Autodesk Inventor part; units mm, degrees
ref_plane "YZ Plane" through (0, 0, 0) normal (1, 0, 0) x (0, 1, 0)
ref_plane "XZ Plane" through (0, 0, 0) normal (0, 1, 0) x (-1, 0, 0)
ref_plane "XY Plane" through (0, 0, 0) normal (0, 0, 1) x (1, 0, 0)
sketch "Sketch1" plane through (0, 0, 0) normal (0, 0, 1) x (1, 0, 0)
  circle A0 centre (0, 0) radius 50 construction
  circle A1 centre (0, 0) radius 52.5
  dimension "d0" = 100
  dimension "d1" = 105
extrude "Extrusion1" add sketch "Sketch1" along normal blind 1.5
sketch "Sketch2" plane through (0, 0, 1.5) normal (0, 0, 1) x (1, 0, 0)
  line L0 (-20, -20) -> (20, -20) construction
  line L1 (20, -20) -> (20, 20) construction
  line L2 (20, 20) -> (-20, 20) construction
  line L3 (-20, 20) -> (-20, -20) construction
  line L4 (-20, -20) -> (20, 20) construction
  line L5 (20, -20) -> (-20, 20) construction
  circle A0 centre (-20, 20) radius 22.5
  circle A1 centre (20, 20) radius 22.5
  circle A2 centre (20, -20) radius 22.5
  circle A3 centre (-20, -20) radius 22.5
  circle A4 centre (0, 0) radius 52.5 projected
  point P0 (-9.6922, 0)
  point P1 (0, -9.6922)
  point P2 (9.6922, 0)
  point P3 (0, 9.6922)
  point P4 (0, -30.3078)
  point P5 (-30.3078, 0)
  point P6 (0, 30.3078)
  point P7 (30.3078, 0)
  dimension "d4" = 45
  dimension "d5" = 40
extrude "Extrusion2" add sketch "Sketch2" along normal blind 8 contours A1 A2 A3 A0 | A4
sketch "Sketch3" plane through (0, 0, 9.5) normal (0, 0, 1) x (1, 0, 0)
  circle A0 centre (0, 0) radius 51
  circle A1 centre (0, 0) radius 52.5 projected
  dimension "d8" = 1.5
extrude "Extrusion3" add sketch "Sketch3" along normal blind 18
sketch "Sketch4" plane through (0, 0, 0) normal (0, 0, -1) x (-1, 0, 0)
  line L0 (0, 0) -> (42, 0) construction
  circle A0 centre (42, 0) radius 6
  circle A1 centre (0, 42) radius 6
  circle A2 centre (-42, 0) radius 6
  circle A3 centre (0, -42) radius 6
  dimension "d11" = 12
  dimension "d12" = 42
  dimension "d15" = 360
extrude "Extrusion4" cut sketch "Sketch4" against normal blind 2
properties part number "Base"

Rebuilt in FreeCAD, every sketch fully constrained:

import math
import FreeCAD as App
import Part
import Sketcher
from FreeCAD import Vector
Q = App.Units.Quantity

doc = App.newDocument("Part")
params = doc.addObject("Spreadsheet::Sheet", "Params")
for row, (alias, value) in enumerate([
    ("sketch1_diameter", "105 mm"),
    ("pad1_length", "1.5 mm"),
    ("sketch2_radius", "22.5 mm"),
    ("sketch2_diameter", "105 mm"),
    ("pad2_length", "8 mm"),
    ("sketch3_diameter", "105 mm"),
    ("sketch3_diameter2", "102 mm"),
    ("pad3_length", "18 mm"),
    ("sketch4_diameter", "12 mm"),
    ("pocket1_length", "2 mm"),
], start=1):
    params.set(f"A{row}", alias)
    params.set(f"B{row}", "=" + value)
    params.setAlias(f"B{row}", alias)

body = doc.addObject("PartDesign::Body", "Body")

# Sketch on XY plane
sketch1 = doc.addObject("Sketcher::SketchObject", "Sketch")
body.addObject(sketch1)
sketch1.AttachmentSupport = (doc.XY_Plane, [""])
sketch1.MapMode = "FlatFace"
sketch1.addGeometry(Part.Circle(Vector(0, 0, 0), Vector(0, 0, 1), 52), False)
sketch1.addConstraint(Sketcher.Constraint("Coincident", 0, 3, -1, 1))
sketch1.addConstraint(Sketcher.Constraint("Diameter", 0, Q("105 mm")))
sketch1.setExpression("Constraints[1]", "Params.sketch1_diameter")
pad1 = doc.addObject("PartDesign::Pad", "Pad")
body.addObject(pad1)
pad1.Profile = sketch1
pad1.setExpression("Length", "Params.pad1_length")

# Sketch on XY plane
sketch2 = doc.addObject("Sketcher::SketchObject", "Sketch001")
body.addObject(sketch2)
sketch2.AttachmentSupport = (doc.XY_Plane, [""])
sketch2.MapMode = "FlatFace"
sketch2.AttachmentOffset = App.Placement(Vector(0, 0, 1.5), App.Rotation())
sketch2.addGeometry(Part.ArcOfCircle(Part.Circle(Vector(20, 20, 0), Vector(0, 0, 1), 22), math.radians(-153), math.radians(-117)), False)
sketch2.addGeometry(Part.ArcOfCircle(Part.Circle(Vector(-20, 20, 0), Vector(0, 0, 1), 22), math.radians(-63), math.radians(-27)), False)
sketch2.addGeometry(Part.ArcOfCircle(Part.Circle(Vector(-20, -20, 0), Vector(0, 0, 1), 22), math.radians(27), math.radians(63)), False)
sketch2.addGeometry(Part.ArcOfCircle(Part.Circle(Vector(20, -20, 0), Vector(0, 0, 1), 22), math.radians(117), math.radians(153)), False)
sketch2.addGeometry(Part.Circle(Vector(0, 0, 0), Vector(0, 0, 1), 52), False)
sketch2.addGeometry(Part.ArcOfCircle(Part.Circle(Vector(-20, 20, 0), Vector(0, 0, 1), 22), math.radians(27), math.radians(243)), False)
sketch2.addGeometry(Part.ArcOfCircle(Part.Circle(Vector(20, 20, 0), Vector(0, 0, 1), 22), math.radians(-63), math.radians(153)), False)
sketch2.addGeometry(Part.ArcOfCircle(Part.Circle(Vector(20, -20, 0), Vector(0, 0, 1), 22), math.radians(-153), math.radians(63)), False)
sketch2.addGeometry(Part.ArcOfCircle(Part.Circle(Vector(-20, -20, 0), Vector(0, 0, 1), 22), math.radians(117), math.radians(333)), False)
sketch2.addConstraint(Sketcher.Constraint("Coincident", 0, 1, 1, 2))
sketch2.addConstraint(Sketcher.Constraint("Coincident", 1, 1, 2, 2))
sketch2.addConstraint(Sketcher.Constraint("Coincident", 2, 1, 3, 2))
sketch2.addConstraint(Sketcher.Constraint("Coincident", 3, 1, 0, 2))
sketch2.addConstraint(Sketcher.Constraint("Coincident", 5, 1, 6, 2))
sketch2.addConstraint(Sketcher.Constraint("Coincident", 6, 1, 7, 2))
sketch2.addConstraint(Sketcher.Constraint("Coincident", 7, 1, 8, 2))
sketch2.addConstraint(Sketcher.Constraint("Coincident", 8, 1, 5, 2))
sketch2.addConstraint(Sketcher.Constraint("Coincident", 4, 3, -1, 1))
sketch2.addConstraint(Sketcher.Constraint("Coincident", 5, 3, 1, 3))
sketch2.addConstraint(Sketcher.Constraint("Coincident", 6, 3, 0, 3))
sketch2.addConstraint(Sketcher.Constraint("Coincident", 7, 3, 3, 3))
sketch2.addConstraint(Sketcher.Constraint("Coincident", 8, 3, 2, 3))
sketch2.addConstraint(Sketcher.Constraint("Equal", 0, 1))
sketch2.addConstraint(Sketcher.Constraint("Equal", 1, 2))
sketch2.addConstraint(Sketcher.Constraint("Equal", 2, 3))
sketch2.addConstraint(Sketcher.Constraint("Equal", 3, 5))
sketch2.addConstraint(Sketcher.Constraint("Equal", 5, 6))
sketch2.addConstraint(Sketcher.Constraint("Equal", 6, 7))
sketch2.addConstraint(Sketcher.Constraint("Equal", 7, 8))
sketch2.addConstraint(Sketcher.Constraint("Symmetric", 0, 3, 2, 3, -1, 1))
sketch2.addConstraint(Sketcher.Constraint("Symmetric", 1, 3, 3, 3, -1, 1))
sketch2.addConstraint(Sketcher.Constraint("Symmetric", 0, 3, 1, 3, -2))
sketch2.addConstraint(Sketcher.Constraint("Radius", 0, Q("22.5 mm")))
sketch2.addConstraint(Sketcher.Constraint("Diameter", 4, Q("105 mm")))
sketch2.addConstraint(Sketcher.Constraint("DistanceX", 1, 3, 0, 3, Q("40 mm")))
sketch2.addConstraint(Sketcher.Constraint("DistanceY", 2, 3, 1, 3, Q("40 mm")))
sketch2.setExpression("Constraints[23]", "Params.sketch2_radius")
sketch2.setExpression("Constraints[24]", "Params.sketch2_diameter")
pad2 = doc.addObject("PartDesign::Pad", "Pad001")
body.addObject(pad2)
pad2.Profile = sketch2
pad2.setExpression("Length", "Params.pad2_length")

# Sketch on XY plane
sketch3 = doc.addObject("Sketcher::SketchObject", "Sketch002")
body.addObject(sketch3)
sketch3.AttachmentSupport = (doc.XY_Plane, [""])
sketch3.MapMode = "FlatFace"
sketch3.AttachmentOffset = App.Placement(Vector(0, 0, 9.5), App.Rotation())
sketch3.addGeometry(Part.Circle(Vector(0, 0, 0), Vector(0, 0, 1), 52), False)
sketch3.addGeometry(Part.Circle(Vector(0, 0, 0), Vector(0, 0, 1), 51), False)
sketch3.addConstraint(Sketcher.Constraint("Coincident", 0, 3, -1, 1))
sketch3.addConstraint(Sketcher.Constraint("Coincident", 1, 3, -1, 1))
sketch3.addConstraint(Sketcher.Constraint("Diameter", 0, Q("105 mm")))
sketch3.addConstraint(Sketcher.Constraint("Diameter", 1, Q("102 mm")))
sketch3.setExpression("Constraints[2]", "Params.sketch3_diameter")
sketch3.setExpression("Constraints[3]", "Params.sketch3_diameter2")
pad3 = doc.addObject("PartDesign::Pad", "Pad002")
body.addObject(pad3)
pad3.Profile = sketch3
pad3.setExpression("Length", "Params.pad3_length")

# Sketch on XY plane
sketch4 = doc.addObject("Sketcher::SketchObject", "Sketch003")
body.addObject(sketch4)
sketch4.AttachmentSupport = (doc.XY_Plane, [""])
sketch4.MapMode = "FlatFace"
sketch4.addGeometry(Part.Circle(Vector(-42, 0, 0), Vector(0, 0, 1), 6), False)
sketch4.addGeometry(Part.Circle(Vector(0, 42, 0), Vector(0, 0, 1), 6), False)
sketch4.addGeometry(Part.Circle(Vector(42, 0, 0), Vector(0, 0, 1), 6), False)
sketch4.addGeometry(Part.Circle(Vector(0, -42, 0), Vector(0, 0, 1), 6), False)
sketch4.addConstraint(Sketcher.Constraint("Equal", 0, 1))
sketch4.addConstraint(Sketcher.Constraint("Equal", 1, 2))
sketch4.addConstraint(Sketcher.Constraint("Equal", 2, 3))
sketch4.addConstraint(Sketcher.Constraint("Symmetric", 0, 3, 2, 3, -1, 1))
sketch4.addConstraint(Sketcher.Constraint("Symmetric", 1, 3, 3, 3, -1, 1))
sketch4.addConstraint(Sketcher.Constraint("PointOnObject", 0, 3, -1))
sketch4.addConstraint(Sketcher.Constraint("PointOnObject", 1, 3, -2))
sketch4.addConstraint(Sketcher.Constraint("Diameter", 0, Q("12 mm")))
sketch4.addConstraint(Sketcher.Constraint("DistanceX", 0, 3, -1, 1, Q("42 mm")))
sketch4.addConstraint(Sketcher.Constraint("DistanceY", -1, 1, 1, 3, Q("42 mm")))
sketch4.setExpression("Constraints[7]", "Params.sketch4_diameter")
pocket1 = doc.addObject("PartDesign::Pocket", "Pocket")
body.addObject(pocket1)
pocket1.Profile = sketch4
pocket1.setExpression("Length", "Params.pocket1_length")
pocket1.Reversed = True

doc.recompute()
